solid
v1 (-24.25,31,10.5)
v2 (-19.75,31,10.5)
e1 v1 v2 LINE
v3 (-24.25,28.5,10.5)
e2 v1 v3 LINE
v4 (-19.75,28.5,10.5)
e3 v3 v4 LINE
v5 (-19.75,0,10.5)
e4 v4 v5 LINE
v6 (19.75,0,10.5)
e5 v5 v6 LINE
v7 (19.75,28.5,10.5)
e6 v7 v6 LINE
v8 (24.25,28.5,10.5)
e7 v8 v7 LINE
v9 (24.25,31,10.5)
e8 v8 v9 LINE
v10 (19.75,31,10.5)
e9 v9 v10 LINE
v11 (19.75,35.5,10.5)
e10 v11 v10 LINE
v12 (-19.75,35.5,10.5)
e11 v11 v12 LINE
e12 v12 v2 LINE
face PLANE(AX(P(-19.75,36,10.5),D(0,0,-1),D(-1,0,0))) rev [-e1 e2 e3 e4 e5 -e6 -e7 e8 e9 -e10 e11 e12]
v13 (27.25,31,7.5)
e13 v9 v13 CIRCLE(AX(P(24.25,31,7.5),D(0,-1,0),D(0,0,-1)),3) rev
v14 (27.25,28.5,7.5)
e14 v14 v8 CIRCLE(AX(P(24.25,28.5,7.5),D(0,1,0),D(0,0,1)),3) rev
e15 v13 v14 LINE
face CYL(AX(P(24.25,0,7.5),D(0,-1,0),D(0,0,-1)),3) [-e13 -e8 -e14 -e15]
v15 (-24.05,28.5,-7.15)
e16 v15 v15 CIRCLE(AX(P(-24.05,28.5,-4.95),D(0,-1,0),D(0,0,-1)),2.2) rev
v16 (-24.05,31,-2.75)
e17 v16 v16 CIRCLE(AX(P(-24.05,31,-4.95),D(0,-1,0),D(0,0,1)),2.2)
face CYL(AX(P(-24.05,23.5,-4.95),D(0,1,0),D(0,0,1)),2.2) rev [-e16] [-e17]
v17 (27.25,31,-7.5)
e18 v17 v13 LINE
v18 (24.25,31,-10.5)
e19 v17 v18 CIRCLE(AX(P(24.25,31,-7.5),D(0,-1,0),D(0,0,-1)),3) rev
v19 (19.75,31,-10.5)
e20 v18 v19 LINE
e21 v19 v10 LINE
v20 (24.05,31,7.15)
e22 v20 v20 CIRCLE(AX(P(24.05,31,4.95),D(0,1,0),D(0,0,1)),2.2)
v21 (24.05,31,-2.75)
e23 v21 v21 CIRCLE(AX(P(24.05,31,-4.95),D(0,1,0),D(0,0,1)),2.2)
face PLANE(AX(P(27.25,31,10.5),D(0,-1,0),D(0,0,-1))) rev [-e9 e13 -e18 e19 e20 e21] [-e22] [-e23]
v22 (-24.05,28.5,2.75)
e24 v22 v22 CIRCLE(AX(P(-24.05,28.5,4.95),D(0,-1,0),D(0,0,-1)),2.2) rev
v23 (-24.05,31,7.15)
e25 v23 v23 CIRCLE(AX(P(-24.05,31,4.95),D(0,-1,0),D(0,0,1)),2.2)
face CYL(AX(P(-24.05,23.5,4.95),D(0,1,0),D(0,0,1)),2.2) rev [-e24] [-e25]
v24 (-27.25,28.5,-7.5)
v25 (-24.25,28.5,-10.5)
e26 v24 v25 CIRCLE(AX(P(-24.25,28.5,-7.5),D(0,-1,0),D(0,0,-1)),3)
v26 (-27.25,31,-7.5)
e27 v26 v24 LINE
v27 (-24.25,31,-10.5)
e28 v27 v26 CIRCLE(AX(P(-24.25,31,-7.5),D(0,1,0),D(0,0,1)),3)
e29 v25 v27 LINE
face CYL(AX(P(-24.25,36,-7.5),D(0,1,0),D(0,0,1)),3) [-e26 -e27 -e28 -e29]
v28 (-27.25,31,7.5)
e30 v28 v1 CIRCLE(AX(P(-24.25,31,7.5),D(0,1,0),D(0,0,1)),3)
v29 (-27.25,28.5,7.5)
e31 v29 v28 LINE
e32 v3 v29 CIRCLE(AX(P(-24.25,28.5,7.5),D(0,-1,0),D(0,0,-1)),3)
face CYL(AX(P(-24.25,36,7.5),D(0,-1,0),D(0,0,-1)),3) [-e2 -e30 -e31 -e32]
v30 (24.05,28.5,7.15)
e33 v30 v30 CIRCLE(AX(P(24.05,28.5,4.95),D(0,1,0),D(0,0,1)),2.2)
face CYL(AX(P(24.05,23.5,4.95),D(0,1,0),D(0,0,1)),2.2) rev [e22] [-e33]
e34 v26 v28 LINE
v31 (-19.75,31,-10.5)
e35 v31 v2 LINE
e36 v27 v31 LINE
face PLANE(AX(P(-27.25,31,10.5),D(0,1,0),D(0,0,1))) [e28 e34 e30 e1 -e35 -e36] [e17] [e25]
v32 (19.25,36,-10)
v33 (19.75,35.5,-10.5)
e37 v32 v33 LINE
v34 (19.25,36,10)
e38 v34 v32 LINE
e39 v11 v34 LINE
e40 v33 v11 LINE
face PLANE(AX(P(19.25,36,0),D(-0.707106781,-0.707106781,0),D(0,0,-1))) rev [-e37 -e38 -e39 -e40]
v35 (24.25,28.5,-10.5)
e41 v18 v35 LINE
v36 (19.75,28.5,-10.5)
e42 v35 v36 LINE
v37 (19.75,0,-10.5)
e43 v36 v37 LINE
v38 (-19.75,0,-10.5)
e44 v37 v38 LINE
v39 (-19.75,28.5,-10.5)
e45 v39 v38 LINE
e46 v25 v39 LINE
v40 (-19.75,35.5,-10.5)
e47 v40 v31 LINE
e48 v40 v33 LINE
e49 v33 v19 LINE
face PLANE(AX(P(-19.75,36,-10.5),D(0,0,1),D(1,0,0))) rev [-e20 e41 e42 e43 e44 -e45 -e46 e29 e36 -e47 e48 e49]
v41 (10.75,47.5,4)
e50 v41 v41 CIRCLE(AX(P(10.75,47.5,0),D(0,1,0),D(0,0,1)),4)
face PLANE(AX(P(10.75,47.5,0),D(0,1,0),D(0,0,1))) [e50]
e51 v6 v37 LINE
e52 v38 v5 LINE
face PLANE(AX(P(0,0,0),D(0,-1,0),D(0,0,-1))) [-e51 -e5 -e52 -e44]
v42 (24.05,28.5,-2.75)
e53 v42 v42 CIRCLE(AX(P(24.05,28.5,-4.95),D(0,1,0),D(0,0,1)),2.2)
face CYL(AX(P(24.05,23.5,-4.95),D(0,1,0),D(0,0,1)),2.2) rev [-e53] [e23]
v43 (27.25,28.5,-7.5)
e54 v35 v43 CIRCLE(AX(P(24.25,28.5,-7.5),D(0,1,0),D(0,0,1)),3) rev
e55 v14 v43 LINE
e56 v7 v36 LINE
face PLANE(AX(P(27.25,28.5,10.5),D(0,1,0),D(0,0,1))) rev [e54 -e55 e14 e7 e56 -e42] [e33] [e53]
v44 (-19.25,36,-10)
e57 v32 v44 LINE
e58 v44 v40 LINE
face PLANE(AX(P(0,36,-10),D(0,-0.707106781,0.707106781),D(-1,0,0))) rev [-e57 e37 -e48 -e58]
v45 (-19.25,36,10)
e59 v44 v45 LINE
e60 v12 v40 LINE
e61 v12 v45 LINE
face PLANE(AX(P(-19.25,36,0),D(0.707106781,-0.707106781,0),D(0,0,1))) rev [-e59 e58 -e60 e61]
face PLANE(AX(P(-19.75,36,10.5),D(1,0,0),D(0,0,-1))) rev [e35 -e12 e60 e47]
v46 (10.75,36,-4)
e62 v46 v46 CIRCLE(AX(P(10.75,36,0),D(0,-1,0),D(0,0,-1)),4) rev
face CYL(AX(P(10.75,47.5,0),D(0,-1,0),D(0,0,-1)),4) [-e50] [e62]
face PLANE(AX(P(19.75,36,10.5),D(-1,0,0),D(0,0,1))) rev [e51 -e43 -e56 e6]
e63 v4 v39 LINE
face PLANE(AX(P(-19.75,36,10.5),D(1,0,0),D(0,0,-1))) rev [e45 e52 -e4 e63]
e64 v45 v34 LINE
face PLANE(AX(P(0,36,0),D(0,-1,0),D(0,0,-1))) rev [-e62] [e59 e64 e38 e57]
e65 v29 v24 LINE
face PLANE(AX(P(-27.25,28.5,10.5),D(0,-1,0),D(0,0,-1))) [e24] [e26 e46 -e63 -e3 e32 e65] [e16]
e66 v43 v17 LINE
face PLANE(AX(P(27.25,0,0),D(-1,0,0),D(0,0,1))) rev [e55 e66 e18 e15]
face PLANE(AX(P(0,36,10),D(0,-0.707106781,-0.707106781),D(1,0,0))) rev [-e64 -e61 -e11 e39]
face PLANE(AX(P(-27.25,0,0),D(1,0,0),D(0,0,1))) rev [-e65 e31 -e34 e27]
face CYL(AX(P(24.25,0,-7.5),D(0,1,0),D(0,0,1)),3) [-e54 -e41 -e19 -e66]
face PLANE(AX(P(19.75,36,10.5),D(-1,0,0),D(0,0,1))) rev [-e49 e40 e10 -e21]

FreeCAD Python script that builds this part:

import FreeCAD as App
import Part
import Sketcher
from FreeCAD import Vector


def edges_at(feature, points):
    """Names of the edges that pass closest to the given points."""
    edges = feature.Shape.Edges
    near = lambda p: min(range(len(edges)), key=lambda i: edges[i].distToShape(Part.Vertex(*p))[0])
    return sorted({f"Edge{near(p) + 1}" for p in points})


def add_polygon(sketch, points):
    """Adds a closed chain of lines whose ends are joined by coincident constraints."""
    first, n = sketch.GeometryCount, len(points)
    for a, b in zip(points, points[1:] + points[:1]):
        sketch.addGeometry(Part.LineSegment(App.Vector(*a, 0), App.Vector(*b, 0)), False)
    for i in range(n):
        sketch.addConstraint(Sketcher.Constraint("Coincident", first + i, 2, first + (i + 1) % n, 1))

doc = App.newDocument("Part")
body = doc.addObject("PartDesign::Body", "Body")

sketch1 = body.newObject("Sketcher::SketchObject", "Sketch")
sketch1.AttachmentSupport = (doc.getObject("XZ_Plane"), [""])
sketch1.MapMode = "FlatFace"
add_polygon(sketch1, [(-20, -10), (-20, 10), (20, 10), (20, -10)])
sketch1.addConstraint(Sketcher.Constraint("Vertical", 0))
sketch1.addConstraint(Sketcher.Constraint("Horizontal", 1))
sketch1.addConstraint(Sketcher.Constraint("Vertical", 2))
sketch1.addConstraint(Sketcher.Constraint("Horizontal", 3))
sketch1.addConstraint(Sketcher.Constraint("Symmetric", 0, 2, 2, 2, -1, 1))
sketch1.addConstraint(Sketcher.Constraint("DistanceY", 0, 1, 0, 2, 21.0))
sketch1.addConstraint(Sketcher.Constraint("DistanceX", 1, 1, 1, 2, 39.5))
pad1 = body.newObject("PartDesign::Pad", "Pad")
pad1.Profile = sketch1
pad1.Length = 36
pad1.Reversed = True

sketch2 = body.newObject("Sketcher::SketchObject", "Sketch001")
sketch2.AttachmentSupport = (doc.getObject("XZ_Plane"), [""])
sketch2.MapMode = "FlatFace"
sketch2.AttachmentOffset = App.Placement(Vector(0, 0, -36), App.Rotation())
sketch2.addGeometry(Part.Circle(Vector(10.8, 0, 0), Vector(0, 0, 1), 4), False)
sketch2.addConstraint(Sketcher.Constraint("PointOnObject", 0, 3, -1))
sketch2.addConstraint(Sketcher.Constraint("Diameter", 0, 8.0))
sketch2.addConstraint(Sketcher.Constraint("DistanceX", -1, 1, 0, 3, 10.75))
pad2 = body.newObject("PartDesign::Pad", "Pad001")
pad2.Profile = sketch2
pad2.Length = 11.5
pad2.Reversed = True

sketch3 = body.newObject("Sketcher::SketchObject", "Sketch002")
sketch3.AttachmentSupport = (doc.getObject("YZ_Plane"), [""])
sketch3.MapMode = "FlatFace"
sketch3.AttachmentOffset = App.Placement(Vector(0, 0, 19.75), App.Rotation())
add_polygon(sketch3, [(31, 10.5), (28.5, 10.5), (28.5, -10.5), (31, -10.5)])
sketch3.addConstraint(Sketcher.Constraint("Horizontal", 0))
sketch3.addConstraint(Sketcher.Constraint("Vertical", 1))
sketch3.addConstraint(Sketcher.Constraint("Horizontal", 2))
sketch3.addConstraint(Sketcher.Constraint("Vertical", 3))
sketch3.addConstraint(Sketcher.Constraint("DistanceY", 1, 2, 1, 1, 21.0))
sketch3.addConstraint(Sketcher.Constraint("DistanceX", 0, 2, 0, 1, 2.5))
sketch3.addConstraint(Sketcher.Constraint("DistanceX", -1, 1, 2, 2, 31.0))
sketch3.addConstraint(Sketcher.Constraint("DistanceY", -1, 1, 0, 2, 10.5))
pad3 = body.newObject("PartDesign::Pad", "Pad002")
pad3.Profile = sketch3
pad3.Length = 7.5

sketch4 = body.newObject("Sketcher::SketchObject", "Sketch003")
sketch4.AttachmentSupport = (doc.getObject("XZ_Plane"), [""])
sketch4.MapMode = "FlatFace"
sketch4.AttachmentOffset = App.Placement(Vector(0, 0, -31), App.Rotation())
sketch4.addGeometry(Part.Circle(Vector(24.1, -5, 0), Vector(0, 0, 1), 2.2), False)
sketch4.addGeometry(Part.Circle(Vector(24.1, 5, 0), Vector(0, 0, 1), 2.2), False)
sketch4.addConstraint(Sketcher.Constraint("Equal", 0, 1))
sketch4.addConstraint(Sketcher.Constraint("Symmetric", 0, 3, 1, 3, -1))
sketch4.addConstraint(Sketcher.Constraint("Diameter", 0, 4.4))
sketch4.addConstraint(Sketcher.Constraint("DistanceY", 0, 3, 1, 3, 9.9))
sketch4.addConstraint(Sketcher.Constraint("DistanceX", -1, 1, 0, 3, 24.05))
pocket1 = body.newObject("PartDesign::Pocket", "Pocket")
pocket1.Profile = sketch4
pocket1.Length = 7.5
pocket1.Reversed = True
doc.recompute()

fillet = body.newObject("PartDesign::Fillet", "Fillet")
fillet.Base = (pocket1, edges_at(pocket1, [(27.25, 29.75, 10.5), (27.25, 29.75, -10.5)]))
fillet.Radius = 3
doc.recompute()

mirrored = body.newObject("PartDesign::Mirrored", "Mirrored")
mirrored.Originals = [pad3, pocket1]
mirrored.MirrorPlane = (doc.getObject("YZ_Plane"), [""])
body.Tip = mirrored
doc.recompute()

fillet2 = body.newObject("PartDesign::Fillet", "Fillet001")
fillet2.Base = (mirrored, edges_at(mirrored, [(-27.25, 29.75, 10.5), (-27.25, 29.75, -10.5)]))
fillet2.Radius = 3
doc.recompute()

chamfer = body.newObject("PartDesign::Chamfer", "Chamfer")
chamfer.Base = (fillet2, edges_at(fillet2, [
    (-19.75, 36, 0),
    (0, 36, 10.5),
    (19.75, 36, 0),
    (0, 36, -10.5),
]))
chamfer.Size = 0.5

doc.recompute()
